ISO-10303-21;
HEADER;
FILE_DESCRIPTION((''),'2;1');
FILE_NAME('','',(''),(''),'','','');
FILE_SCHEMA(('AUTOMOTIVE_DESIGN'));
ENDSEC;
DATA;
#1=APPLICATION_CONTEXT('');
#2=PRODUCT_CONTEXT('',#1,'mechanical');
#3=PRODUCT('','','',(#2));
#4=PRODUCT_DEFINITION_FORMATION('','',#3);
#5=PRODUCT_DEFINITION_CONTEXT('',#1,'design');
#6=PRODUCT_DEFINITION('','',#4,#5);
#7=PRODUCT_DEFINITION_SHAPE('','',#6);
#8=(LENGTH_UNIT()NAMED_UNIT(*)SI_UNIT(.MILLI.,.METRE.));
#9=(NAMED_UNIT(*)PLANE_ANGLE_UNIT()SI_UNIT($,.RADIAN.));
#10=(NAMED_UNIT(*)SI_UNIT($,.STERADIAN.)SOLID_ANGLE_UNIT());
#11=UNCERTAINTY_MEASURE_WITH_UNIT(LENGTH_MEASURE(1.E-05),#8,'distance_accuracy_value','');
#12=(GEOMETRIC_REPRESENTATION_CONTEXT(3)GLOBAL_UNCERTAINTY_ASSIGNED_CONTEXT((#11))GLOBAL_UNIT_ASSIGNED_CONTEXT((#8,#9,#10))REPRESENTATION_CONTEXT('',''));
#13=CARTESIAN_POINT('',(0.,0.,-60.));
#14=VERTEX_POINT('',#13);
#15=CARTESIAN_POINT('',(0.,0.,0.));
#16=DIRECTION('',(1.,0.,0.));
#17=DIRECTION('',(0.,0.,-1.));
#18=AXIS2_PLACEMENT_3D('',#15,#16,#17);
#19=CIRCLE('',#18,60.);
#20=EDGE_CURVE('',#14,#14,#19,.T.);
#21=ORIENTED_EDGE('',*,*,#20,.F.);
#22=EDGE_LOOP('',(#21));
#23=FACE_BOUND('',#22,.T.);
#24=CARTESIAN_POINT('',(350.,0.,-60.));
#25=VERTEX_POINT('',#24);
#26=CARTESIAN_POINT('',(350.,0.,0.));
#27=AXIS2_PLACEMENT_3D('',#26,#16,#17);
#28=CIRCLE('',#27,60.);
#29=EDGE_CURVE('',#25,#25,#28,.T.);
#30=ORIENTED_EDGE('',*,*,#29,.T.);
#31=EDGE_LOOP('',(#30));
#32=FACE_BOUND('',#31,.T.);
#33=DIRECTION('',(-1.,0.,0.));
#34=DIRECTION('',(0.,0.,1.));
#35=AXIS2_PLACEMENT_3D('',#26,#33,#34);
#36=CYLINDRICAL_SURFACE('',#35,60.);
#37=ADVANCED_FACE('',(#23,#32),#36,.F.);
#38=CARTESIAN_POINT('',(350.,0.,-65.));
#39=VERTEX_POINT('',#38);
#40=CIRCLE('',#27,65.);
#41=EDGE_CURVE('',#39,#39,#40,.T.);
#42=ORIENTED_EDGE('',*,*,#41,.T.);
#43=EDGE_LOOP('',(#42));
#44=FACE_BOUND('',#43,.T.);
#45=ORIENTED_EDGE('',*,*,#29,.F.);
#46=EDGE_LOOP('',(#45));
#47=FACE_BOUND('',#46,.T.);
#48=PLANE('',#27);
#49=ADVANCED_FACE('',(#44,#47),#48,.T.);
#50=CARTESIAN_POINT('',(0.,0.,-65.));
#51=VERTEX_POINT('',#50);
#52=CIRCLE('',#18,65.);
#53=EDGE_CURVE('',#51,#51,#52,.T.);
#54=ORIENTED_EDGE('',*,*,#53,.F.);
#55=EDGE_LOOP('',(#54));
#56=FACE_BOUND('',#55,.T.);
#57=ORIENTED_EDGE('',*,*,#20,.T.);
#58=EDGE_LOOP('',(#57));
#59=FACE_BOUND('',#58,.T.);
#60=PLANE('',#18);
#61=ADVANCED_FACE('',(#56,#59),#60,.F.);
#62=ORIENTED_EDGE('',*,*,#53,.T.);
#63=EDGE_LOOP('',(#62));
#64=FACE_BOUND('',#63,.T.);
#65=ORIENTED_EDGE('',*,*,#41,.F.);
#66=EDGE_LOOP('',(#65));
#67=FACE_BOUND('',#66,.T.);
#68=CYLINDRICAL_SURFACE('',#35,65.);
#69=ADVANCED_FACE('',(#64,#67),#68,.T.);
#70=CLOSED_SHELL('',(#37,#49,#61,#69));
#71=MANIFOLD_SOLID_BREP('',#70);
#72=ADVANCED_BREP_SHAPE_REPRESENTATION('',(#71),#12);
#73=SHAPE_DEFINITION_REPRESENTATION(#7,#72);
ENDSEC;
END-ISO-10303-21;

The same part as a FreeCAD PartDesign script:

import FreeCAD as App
import Part
import Sketcher
Q = App.Units.Quantity

doc = App.newDocument("Part")
body = doc.addObject("PartDesign::Body", "Body")

sketch1 = body.newObject("Sketcher::SketchObject", "Sketch")
sketch1.AttachmentSupport = (doc.getObject("YZ_Plane"), [""])
sketch1.MapMode = "FlatFace"
sketch1.addGeometry(Part.Circle(App.Vector(0, 0, 0), App.Vector(0, 0, 1), 65), False)
sketch1.addGeometry(Part.Circle(App.Vector(0, 0, 0), App.Vector(0, 0, 1), 60), False)
sketch1.addConstraint(Sketcher.Constraint("Coincident", 0, 3, -1, 1))
sketch1.addConstraint(Sketcher.Constraint("Coincident", 1, 3, -1, 1))
sketch1.addConstraint(Sketcher.Constraint("Diameter", 0, Q("130 mm")))
sketch1.addConstraint(Sketcher.Constraint("Diameter", 1, Q("120 mm")))
pad1 = body.newObject("PartDesign::Pad", "Pad")
pad1.Profile = sketch1
pad1.Length = 350

doc.recompute()
